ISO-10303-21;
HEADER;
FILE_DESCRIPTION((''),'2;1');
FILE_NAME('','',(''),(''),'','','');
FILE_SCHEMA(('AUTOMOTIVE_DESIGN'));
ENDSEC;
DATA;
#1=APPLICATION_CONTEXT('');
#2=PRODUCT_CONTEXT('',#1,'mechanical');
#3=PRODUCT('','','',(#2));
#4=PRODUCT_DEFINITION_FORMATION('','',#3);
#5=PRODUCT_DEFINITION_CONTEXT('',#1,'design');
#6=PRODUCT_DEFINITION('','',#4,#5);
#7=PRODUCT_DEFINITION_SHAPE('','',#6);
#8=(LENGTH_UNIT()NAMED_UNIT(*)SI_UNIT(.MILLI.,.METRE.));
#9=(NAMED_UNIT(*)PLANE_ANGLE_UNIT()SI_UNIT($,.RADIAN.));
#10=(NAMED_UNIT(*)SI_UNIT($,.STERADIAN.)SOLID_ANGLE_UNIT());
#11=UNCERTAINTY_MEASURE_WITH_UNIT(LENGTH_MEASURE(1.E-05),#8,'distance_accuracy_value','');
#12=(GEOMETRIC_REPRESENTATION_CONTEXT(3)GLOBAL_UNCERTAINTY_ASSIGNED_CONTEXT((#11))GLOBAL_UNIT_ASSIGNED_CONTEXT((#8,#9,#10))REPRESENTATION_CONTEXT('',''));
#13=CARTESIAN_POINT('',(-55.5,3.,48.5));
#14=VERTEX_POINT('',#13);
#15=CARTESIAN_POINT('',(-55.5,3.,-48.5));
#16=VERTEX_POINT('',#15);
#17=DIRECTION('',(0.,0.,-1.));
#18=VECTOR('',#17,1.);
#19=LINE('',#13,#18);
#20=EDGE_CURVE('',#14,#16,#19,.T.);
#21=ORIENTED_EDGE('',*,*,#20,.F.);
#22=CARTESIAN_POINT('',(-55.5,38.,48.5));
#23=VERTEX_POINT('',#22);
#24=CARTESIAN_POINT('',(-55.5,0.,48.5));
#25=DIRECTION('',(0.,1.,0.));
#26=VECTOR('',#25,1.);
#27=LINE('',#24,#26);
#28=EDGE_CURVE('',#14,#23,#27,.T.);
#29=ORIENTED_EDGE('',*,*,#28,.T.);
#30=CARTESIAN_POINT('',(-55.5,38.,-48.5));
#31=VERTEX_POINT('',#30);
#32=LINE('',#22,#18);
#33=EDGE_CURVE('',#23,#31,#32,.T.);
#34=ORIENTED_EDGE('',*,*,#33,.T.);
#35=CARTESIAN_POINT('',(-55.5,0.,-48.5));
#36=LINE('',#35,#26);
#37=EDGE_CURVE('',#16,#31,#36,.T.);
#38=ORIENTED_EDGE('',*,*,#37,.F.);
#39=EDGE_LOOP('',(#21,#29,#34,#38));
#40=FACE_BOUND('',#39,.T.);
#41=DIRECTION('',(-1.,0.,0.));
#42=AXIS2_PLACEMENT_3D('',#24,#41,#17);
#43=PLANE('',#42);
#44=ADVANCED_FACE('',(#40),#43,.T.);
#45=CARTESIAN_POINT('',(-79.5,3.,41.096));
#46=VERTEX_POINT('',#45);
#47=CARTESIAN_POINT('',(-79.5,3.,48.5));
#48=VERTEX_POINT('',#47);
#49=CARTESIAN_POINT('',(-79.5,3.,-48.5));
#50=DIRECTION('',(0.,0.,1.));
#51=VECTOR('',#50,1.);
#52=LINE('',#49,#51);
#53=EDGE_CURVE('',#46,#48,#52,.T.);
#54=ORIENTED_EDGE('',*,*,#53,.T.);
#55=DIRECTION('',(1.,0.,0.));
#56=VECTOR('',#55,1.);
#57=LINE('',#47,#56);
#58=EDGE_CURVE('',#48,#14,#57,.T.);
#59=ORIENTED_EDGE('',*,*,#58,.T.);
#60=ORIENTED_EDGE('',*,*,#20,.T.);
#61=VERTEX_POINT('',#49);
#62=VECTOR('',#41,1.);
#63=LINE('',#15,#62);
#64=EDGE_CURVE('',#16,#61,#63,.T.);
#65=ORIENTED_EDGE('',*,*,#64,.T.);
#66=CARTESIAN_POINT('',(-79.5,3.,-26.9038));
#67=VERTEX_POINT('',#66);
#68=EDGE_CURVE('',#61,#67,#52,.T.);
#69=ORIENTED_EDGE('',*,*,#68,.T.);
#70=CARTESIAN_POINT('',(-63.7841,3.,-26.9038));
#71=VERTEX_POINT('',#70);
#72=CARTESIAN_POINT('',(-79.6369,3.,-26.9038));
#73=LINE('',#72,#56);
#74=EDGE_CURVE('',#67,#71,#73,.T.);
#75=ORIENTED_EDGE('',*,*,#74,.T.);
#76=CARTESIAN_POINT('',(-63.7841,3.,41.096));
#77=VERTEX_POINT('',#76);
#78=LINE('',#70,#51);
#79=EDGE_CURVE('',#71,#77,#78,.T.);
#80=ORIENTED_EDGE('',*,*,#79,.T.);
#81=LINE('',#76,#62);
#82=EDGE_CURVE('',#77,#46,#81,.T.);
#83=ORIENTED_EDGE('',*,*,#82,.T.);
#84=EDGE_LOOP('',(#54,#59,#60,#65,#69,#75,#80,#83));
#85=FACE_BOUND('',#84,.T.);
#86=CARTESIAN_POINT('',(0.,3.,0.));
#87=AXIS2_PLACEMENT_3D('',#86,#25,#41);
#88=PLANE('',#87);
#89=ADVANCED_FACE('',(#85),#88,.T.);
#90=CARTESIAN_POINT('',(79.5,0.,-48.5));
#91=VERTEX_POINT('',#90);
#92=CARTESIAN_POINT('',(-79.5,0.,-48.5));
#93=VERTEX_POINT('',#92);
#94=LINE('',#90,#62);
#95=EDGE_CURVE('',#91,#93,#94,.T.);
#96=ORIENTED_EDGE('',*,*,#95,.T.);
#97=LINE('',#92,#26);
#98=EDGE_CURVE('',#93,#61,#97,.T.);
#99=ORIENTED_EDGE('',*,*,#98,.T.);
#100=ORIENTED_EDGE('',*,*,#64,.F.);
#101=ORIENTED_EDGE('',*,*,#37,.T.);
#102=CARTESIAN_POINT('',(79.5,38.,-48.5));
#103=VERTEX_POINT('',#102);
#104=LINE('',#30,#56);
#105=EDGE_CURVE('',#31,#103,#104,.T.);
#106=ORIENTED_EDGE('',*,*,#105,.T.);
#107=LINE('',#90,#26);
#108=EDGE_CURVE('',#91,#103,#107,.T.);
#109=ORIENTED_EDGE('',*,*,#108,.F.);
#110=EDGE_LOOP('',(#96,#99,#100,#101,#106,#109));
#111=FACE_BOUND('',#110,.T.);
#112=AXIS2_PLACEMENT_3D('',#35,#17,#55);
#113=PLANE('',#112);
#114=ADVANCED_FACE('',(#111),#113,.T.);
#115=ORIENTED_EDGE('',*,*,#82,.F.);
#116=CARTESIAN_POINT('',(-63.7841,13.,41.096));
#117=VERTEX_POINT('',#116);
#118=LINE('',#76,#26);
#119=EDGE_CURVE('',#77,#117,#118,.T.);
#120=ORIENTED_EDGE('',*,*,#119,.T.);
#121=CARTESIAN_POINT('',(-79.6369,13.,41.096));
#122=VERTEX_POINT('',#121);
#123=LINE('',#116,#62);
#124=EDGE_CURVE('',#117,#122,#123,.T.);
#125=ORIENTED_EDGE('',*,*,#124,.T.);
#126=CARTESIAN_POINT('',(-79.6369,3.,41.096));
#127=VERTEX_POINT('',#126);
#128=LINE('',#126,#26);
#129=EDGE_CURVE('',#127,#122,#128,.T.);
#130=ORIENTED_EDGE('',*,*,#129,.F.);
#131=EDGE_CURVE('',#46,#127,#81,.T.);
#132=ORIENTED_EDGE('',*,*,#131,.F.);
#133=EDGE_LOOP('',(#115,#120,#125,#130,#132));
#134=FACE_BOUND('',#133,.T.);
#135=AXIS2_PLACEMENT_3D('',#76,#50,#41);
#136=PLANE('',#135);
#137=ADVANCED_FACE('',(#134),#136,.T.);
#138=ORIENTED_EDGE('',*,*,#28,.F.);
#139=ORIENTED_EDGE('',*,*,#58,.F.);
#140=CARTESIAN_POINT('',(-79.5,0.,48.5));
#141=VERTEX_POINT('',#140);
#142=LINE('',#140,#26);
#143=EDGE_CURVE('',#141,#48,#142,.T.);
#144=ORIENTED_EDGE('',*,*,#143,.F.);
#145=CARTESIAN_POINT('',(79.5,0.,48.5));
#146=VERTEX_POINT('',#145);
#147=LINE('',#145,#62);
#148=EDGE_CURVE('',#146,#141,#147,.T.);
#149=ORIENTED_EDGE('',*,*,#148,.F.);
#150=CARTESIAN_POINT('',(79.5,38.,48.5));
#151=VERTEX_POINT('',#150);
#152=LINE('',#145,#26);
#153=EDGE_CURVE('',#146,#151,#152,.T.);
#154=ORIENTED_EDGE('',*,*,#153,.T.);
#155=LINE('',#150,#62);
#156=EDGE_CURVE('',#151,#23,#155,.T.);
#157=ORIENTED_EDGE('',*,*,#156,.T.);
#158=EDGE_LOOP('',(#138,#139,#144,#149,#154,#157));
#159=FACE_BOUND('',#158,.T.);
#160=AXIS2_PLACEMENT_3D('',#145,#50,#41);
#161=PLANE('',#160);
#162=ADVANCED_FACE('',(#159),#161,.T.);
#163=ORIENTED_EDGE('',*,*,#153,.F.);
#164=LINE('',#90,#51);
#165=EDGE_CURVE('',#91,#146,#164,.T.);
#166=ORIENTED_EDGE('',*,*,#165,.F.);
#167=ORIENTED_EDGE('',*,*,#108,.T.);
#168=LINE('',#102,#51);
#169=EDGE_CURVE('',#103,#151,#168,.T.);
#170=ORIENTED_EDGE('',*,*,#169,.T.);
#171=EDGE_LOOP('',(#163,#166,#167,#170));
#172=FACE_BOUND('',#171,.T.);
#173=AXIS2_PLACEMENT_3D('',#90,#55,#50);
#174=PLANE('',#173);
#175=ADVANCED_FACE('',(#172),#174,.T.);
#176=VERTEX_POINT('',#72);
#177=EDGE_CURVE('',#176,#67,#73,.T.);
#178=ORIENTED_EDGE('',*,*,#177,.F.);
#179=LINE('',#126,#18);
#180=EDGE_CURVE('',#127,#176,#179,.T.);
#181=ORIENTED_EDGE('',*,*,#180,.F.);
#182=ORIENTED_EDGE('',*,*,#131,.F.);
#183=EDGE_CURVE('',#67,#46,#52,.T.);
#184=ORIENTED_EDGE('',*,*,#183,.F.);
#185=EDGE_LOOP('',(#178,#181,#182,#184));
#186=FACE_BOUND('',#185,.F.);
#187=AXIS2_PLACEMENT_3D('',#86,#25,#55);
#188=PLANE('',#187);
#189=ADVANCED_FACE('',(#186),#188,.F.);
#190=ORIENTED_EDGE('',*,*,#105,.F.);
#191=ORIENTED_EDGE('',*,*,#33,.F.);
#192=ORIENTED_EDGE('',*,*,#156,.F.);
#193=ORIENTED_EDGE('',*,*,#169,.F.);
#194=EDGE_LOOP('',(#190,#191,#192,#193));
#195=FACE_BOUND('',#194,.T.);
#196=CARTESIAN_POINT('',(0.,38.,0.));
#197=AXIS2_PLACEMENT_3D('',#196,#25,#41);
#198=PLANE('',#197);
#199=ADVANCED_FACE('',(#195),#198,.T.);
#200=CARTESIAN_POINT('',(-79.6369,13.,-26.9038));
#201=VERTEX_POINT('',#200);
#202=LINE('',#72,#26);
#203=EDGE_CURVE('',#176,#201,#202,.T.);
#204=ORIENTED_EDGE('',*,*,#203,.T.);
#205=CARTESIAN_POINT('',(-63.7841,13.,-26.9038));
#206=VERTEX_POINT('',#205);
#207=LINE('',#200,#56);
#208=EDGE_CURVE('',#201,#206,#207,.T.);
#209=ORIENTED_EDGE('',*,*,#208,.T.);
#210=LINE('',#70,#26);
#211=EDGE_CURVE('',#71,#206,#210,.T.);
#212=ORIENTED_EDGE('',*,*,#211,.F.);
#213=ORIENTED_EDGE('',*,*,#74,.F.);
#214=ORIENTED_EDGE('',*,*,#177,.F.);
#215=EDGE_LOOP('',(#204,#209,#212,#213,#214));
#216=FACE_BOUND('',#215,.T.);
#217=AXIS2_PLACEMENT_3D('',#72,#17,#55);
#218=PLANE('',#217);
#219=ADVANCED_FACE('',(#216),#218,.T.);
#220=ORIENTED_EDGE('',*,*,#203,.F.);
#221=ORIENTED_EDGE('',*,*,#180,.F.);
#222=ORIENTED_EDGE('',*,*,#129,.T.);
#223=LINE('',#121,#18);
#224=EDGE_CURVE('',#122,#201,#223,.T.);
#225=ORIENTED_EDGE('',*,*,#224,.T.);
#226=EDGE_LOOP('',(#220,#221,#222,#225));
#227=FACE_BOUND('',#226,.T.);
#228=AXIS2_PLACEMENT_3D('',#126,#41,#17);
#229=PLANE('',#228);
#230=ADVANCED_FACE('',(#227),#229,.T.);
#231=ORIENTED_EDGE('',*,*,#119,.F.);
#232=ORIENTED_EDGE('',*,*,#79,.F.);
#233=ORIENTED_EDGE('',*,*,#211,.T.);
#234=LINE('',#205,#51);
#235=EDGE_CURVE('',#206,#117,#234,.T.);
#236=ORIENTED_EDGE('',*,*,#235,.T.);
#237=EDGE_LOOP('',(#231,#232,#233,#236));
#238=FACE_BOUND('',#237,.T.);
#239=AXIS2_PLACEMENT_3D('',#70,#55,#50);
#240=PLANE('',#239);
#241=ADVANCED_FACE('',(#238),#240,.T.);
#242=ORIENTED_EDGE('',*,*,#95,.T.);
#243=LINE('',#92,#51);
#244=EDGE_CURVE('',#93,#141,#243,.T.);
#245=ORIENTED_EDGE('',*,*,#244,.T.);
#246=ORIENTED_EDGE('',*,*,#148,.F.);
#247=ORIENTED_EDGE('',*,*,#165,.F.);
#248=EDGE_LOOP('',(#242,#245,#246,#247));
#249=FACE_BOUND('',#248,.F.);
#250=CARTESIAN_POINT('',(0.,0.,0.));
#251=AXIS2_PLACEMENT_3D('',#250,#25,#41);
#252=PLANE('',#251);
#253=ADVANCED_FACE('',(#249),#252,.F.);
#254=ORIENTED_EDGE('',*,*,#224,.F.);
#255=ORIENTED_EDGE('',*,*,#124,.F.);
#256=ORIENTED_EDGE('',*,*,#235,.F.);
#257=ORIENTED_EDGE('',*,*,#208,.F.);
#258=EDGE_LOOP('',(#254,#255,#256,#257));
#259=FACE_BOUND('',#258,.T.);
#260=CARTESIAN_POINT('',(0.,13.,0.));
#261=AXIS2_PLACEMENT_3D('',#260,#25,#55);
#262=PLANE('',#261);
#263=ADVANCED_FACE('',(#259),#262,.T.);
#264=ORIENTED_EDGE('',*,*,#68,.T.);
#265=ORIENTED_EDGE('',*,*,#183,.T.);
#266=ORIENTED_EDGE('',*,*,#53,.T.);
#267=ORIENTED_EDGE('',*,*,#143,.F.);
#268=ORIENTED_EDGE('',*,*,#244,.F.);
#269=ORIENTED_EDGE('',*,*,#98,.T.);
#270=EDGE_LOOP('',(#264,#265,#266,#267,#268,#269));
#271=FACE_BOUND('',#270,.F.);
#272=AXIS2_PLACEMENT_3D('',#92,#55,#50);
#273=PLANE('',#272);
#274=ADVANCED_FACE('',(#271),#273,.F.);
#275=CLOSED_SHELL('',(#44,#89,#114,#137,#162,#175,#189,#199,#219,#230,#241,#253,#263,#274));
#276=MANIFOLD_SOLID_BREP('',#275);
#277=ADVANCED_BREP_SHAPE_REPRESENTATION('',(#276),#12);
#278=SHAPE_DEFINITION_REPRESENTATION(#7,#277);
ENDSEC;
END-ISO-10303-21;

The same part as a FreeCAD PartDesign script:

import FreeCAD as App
import Part
import Sketcher
Q = App.Units.Quantity

doc = App.newDocument("Part")
body = doc.addObject("PartDesign::Body", "Body")

# Sketch on XZ plane
sketch1 = doc.addObject("Sketcher::SketchObject", "Sketch")
body.addObject(sketch1)
sketch1.AttachmentSupport = (doc.XZ_Plane, [""])
sketch1.MapMode = "FlatFace"
sketch1.addGeometry([
    Part.LineSegment(App.Vector(80, -48, 0), App.Vector(-56, -48, 0)),
    Part.LineSegment(App.Vector(-56, -48, 0), App.Vector(-56, 48, 0)),
    Part.LineSegment(App.Vector(-56, 48, 0), App.Vector(80, 48, 0)),
    Part.LineSegment(App.Vector(80, 48, 0), App.Vector(80, -48, 0)),
], False)
sketch1.addConstraint([
    Sketcher.Constraint("Coincident", 0, 2, 1, 1),
    Sketcher.Constraint("Coincident", 1, 2, 2, 1),
    Sketcher.Constraint("Coincident", 2, 2, 3, 1),
    Sketcher.Constraint("Coincident", 3, 2, 0, 1),
    Sketcher.Constraint("Horizontal", 0),
    Sketcher.Constraint("Vertical", 1),
    Sketcher.Constraint("Horizontal", 2),
    Sketcher.Constraint("Vertical", 3),
    Sketcher.Constraint("DistanceX", 0, 2, -1, 1, Q("55.5 mm")),
    Sketcher.Constraint("DistanceY", 0, 2, -1, 1, Q("48.5 mm")),
    Sketcher.Constraint("DistanceY", -1, 1, 1, 2, Q("48.5 mm")),
    Sketcher.Constraint("DistanceX", -1, 1, 2, 2, Q("79.5 mm")),
])
pad1 = doc.addObject("PartDesign::Pad", "Pad")
body.addObject(pad1)
pad1.Profile = sketch1
pad1.Length = 38
pad1.Reversed = True

# Sketch on XZ plane
sketch2 = doc.addObject("Sketcher::SketchObject", "Sketch001")
body.addObject(sketch2)
sketch2.AttachmentSupport = (doc.XZ_Plane, [""])
sketch2.MapMode = "FlatFace"
sketch2.addGeometry([
    Part.LineSegment(App.Vector(-56, 48, 0), App.Vector(-56, -48, 0)),
    Part.LineSegment(App.Vector(-56, -48, 0), App.Vector(-80, -48, 0)),
    Part.LineSegment(App.Vector(-80, -48, 0), App.Vector(-80, 48, 0)),
    Part.LineSegment(App.Vector(-80, 48, 0), App.Vector(-56, 48, 0)),
], False)
sketch2.addConstraint([
    Sketcher.Constraint("Coincident", 0, 2, 1, 1),
    Sketcher.Constraint("Coincident", 1, 2, 2, 1),
    Sketcher.Constraint("Coincident", 2, 2, 3, 1),
    Sketcher.Constraint("Coincident", 3, 2, 0, 1),
    Sketcher.Constraint("Vertical", 0),
    Sketcher.Constraint("Horizontal", 1),
    Sketcher.Constraint("Vertical", 2),
    Sketcher.Constraint("Horizontal", 3),
    Sketcher.Constraint("DistanceX", 1, 2, 1, 1, Q("24 mm")),
    Sketcher.Constraint("DistanceY", 0, 2, 0, 1, Q("97 mm")),
    Sketcher.Constraint("DistanceX", 0, 2, -1, 1, Q("55.5 mm")),
    Sketcher.Constraint("DistanceY", 0, 2, -1, 1, Q("48.5 mm")),
])
pad2 = doc.addObject("PartDesign::Pad", "Pad001")
body.addObject(pad2)
pad2.Profile = sketch2
pad2.Length = 3
pad2.Reversed = True

# Sketch on XZ plane
sketch3 = doc.addObject("Sketcher::SketchObject", "Sketch002")
body.addObject(sketch3)
sketch3.AttachmentSupport = (doc.XZ_Plane, [""])
sketch3.MapMode = "FlatFace"
sketch3.AttachmentOffset = App.Placement(App.Vector(0, 0, -3), App.Rotation())
sketch3.addGeometry([
    Part.LineSegment(App.Vector(-64, -27, 0), App.Vector(-80, -27, 0)),
    Part.LineSegment(App.Vector(-80, -27, 0), App.Vector(-80, 41, 0)),
    Part.LineSegment(App.Vector(-80, 41, 0), App.Vector(-64, 41, 0)),
    Part.LineSegment(App.Vector(-64, 41, 0), App.Vector(-64, -27, 0)),
], False)
sketch3.addConstraint([
    Sketcher.Constraint("Coincident", 0, 2, 1, 1),
    Sketcher.Constraint("Coincident", 1, 2, 2, 1),
    Sketcher.Constraint("Coincident", 2, 2, 3, 1),
    Sketcher.Constraint("Coincident", 3, 2, 0, 1),
    Sketcher.Constraint("Horizontal", 0),
    Sketcher.Constraint("Vertical", 1),
    Sketcher.Constraint("Horizontal", 2),
    Sketcher.Constraint("Vertical", 3),
    Sketcher.Constraint("DistanceX", 0, 2, 0, 1, Q("15.8528 mm")),
    Sketcher.Constraint("DistanceY", 1, 1, 1, 2, Q("67.9998 mm")),
    Sketcher.Constraint("DistanceX", 0, 2, -1, 1, Q("79.637 mm")),
    Sketcher.Constraint("DistanceY", -1, 1, 1, 2, Q("41.096 mm")),
])
pad3 = doc.addObject("PartDesign::Pad", "Pad002")
body.addObject(pad3)
pad3.Profile = sketch3
pad3.Length = 10
pad3.Reversed = True

doc.recompute()
